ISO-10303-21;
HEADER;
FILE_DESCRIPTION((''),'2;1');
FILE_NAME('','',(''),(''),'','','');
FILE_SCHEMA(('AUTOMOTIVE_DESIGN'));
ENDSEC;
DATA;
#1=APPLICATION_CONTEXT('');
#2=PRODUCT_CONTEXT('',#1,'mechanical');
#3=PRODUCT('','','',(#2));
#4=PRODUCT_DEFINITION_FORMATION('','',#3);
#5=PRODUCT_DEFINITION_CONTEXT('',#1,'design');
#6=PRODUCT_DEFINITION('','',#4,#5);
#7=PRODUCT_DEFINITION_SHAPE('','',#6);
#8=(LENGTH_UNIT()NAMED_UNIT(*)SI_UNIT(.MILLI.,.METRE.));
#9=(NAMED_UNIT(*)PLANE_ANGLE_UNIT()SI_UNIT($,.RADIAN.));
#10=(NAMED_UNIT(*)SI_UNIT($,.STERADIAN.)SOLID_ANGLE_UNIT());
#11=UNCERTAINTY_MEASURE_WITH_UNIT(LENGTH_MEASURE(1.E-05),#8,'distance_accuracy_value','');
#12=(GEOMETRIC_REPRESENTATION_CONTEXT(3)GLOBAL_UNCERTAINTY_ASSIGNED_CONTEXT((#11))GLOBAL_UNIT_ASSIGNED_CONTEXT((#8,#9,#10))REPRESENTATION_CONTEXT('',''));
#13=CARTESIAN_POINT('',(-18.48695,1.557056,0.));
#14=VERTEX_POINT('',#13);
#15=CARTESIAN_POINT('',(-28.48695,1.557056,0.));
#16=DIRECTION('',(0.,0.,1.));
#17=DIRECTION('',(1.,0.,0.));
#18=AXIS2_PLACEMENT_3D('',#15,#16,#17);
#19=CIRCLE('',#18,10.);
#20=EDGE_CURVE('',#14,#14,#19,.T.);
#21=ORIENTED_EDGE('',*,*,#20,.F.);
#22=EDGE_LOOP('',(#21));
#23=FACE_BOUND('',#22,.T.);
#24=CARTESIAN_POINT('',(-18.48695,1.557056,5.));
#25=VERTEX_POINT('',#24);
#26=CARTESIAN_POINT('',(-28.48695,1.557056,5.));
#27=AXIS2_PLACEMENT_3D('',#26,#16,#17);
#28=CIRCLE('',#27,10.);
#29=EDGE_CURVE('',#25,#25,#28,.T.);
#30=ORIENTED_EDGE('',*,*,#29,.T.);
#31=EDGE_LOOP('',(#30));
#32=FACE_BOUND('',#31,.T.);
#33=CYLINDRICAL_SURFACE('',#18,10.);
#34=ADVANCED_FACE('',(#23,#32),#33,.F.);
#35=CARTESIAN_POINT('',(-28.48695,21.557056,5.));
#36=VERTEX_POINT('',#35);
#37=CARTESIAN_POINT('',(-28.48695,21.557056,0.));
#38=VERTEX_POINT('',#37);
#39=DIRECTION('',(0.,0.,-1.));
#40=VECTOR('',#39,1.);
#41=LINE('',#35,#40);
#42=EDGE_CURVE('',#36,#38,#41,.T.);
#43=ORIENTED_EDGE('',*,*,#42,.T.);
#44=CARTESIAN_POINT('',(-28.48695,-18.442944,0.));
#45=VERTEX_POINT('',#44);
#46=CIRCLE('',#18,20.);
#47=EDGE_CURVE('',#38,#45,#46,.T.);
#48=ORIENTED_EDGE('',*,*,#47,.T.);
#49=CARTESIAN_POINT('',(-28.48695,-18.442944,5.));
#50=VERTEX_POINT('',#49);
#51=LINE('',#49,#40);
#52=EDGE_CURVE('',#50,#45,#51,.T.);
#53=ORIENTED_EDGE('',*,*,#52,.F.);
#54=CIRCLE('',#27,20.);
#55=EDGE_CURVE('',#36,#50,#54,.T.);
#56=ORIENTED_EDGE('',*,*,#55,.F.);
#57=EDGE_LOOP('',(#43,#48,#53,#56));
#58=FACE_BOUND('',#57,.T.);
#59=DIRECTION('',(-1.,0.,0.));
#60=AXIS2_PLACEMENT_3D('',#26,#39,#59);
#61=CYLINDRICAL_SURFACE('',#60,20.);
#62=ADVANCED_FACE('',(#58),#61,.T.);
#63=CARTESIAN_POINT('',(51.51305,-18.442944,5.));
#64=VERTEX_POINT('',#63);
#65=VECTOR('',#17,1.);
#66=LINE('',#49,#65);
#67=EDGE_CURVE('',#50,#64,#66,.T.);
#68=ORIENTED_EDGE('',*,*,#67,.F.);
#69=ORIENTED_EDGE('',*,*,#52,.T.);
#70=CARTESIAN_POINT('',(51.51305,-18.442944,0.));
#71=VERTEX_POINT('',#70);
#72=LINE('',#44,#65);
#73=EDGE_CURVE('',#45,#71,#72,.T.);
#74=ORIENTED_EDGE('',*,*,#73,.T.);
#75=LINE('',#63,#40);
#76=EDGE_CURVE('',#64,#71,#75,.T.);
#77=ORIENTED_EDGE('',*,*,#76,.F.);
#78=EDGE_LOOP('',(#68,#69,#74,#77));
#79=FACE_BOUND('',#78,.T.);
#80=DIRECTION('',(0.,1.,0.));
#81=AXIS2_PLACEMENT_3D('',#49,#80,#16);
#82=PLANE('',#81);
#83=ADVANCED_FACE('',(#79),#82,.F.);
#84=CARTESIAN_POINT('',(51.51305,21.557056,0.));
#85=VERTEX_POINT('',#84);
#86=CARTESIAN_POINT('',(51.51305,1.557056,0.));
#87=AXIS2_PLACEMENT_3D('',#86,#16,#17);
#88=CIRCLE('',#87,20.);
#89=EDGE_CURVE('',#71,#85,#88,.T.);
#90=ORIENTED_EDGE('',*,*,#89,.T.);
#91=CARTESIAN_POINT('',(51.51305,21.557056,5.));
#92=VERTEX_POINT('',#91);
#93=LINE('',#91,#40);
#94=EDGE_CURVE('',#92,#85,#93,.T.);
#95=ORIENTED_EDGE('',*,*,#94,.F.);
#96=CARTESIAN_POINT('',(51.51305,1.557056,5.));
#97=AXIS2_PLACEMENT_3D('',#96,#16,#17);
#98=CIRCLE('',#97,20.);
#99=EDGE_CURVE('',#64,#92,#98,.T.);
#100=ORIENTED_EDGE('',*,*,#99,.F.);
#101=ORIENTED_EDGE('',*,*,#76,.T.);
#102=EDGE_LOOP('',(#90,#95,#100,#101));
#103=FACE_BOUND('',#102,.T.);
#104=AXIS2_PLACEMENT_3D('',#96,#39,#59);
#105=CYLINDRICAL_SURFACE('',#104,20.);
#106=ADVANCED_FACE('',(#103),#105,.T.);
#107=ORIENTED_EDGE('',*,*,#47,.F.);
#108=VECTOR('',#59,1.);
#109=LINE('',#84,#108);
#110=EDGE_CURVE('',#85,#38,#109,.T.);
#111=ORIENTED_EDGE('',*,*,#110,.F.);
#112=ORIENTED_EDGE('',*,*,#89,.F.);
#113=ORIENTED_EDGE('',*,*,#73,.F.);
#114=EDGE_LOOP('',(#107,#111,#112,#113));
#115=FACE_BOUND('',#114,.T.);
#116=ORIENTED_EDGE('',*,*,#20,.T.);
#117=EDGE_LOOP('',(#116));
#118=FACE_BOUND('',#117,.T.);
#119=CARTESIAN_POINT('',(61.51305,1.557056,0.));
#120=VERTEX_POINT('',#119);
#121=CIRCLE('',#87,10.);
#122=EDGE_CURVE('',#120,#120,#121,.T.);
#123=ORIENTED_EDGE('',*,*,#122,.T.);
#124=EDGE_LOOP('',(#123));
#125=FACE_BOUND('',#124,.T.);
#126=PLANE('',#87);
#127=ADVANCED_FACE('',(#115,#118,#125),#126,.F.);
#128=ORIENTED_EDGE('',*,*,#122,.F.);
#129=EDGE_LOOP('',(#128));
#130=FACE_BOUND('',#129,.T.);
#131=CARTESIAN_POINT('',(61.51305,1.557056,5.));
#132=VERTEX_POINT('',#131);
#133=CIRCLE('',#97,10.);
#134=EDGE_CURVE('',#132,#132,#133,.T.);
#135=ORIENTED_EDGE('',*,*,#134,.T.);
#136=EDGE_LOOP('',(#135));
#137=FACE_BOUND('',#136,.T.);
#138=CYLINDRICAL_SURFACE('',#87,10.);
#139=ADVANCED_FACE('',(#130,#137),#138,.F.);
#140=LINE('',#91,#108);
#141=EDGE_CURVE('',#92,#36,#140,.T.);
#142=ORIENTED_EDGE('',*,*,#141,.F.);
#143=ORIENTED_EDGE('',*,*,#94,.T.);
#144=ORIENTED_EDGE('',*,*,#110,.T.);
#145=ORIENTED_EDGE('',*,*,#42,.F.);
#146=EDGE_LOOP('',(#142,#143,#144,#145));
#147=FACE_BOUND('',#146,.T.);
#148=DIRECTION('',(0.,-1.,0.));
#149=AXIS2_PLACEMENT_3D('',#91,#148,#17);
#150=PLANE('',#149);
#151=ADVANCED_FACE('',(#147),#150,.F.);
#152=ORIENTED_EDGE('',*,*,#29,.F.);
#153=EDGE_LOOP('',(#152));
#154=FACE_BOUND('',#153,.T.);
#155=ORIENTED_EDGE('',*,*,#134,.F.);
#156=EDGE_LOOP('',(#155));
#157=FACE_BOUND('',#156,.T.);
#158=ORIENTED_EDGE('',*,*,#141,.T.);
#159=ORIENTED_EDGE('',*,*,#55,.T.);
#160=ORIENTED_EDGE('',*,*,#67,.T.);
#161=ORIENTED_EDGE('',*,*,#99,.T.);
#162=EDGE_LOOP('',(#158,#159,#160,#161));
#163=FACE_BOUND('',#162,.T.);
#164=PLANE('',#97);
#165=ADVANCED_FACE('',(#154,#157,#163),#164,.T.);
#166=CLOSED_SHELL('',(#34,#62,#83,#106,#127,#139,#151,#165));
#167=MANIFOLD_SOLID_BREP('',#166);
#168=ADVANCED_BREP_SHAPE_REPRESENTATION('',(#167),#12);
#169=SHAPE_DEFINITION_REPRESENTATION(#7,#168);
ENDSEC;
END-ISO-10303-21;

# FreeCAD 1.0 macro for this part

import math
import FreeCAD as App
import Part
import Sketcher

V = App.Vector
Q = App.Units.Quantity

doc = App.newDocument("Part")
params = doc.addObject("Spreadsheet::Sheet", "Params")
for row, (alias, value) in enumerate([
    ("sketch1_radius", "20 mm"),
    ("sketch1_width", "80 mm"),
    ("pad1_length", "5 mm"),
    ("sketch2_diameter", "20 mm"),
], start=1):
    params.set(f"A{row}", alias)
    params.set(f"B{row}", "=" + value)
    params.setAlias(f"B{row}", alias)

body = doc.addObject("PartDesign::Body", "Body")

sketch1 = body.newObject("Sketcher::SketchObject", "Sketch")
sketch1.AttachmentSupport = (doc.getObject("XY_Plane"), [""])
sketch1.MapMode = "FlatFace"
sketch1.addGeometry(Part.LineSegment(V(52, 22, 0), V(-28, 22, 0)), False)
sketch1.addGeometry(Part.ArcOfCircle(Part.Circle(V(-28, 2, 0), V(0, 0, 1), 20), math.radians(90), math.radians(270)), False)
sketch1.addGeometry(Part.LineSegment(V(-28, -18, 0), V(52, -18, 0)), False)
sketch1.addGeometry(Part.ArcOfCircle(Part.Circle(V(52, 2, 0), V(0, 0, 1), 20), math.radians(-90), math.radians(90)), False)
sketch1.addConstraint(Sketcher.Constraint("Tangent", 0, 2, 1, 1))
sketch1.addConstraint(Sketcher.Constraint("Tangent", 1, 2, 2, 1))
sketch1.addConstraint(Sketcher.Constraint("Tangent", 2, 2, 3, 1))
sketch1.addConstraint(Sketcher.Constraint("Tangent", 3, 2, 0, 1))
sketch1.addConstraint(Sketcher.Constraint("Horizontal", 0))
sketch1.addConstraint(Sketcher.Constraint("Horizontal", 2))
sketch1.addConstraint(Sketcher.Constraint("Radius", 1, Q("20 mm")))
sketch1.addConstraint(Sketcher.Constraint("DistanceX", 0, 2, 0, 1, Q("80 mm")))
sketch1.addConstraint(Sketcher.Constraint("DistanceX", 1, 3, -1, 1, Q("28.48695 mm")))
sketch1.addConstraint(Sketcher.Constraint("DistanceY", -1, 1, 1, 3, Q("1.557056 mm")))
sketch1.setExpression("Constraints[6]", "Params.sketch1_radius")
sketch1.setExpression("Constraints[7]", "Params.sketch1_width")
pad1 = body.newObject("PartDesign::Pad", "Pad")
pad1.Profile = sketch1
pad1.setExpression("Length", "Params.pad1_length")

sketch2 = body.newObject("Sketcher::SketchObject", "Sketch001")
sketch2.AttachmentSupport = (doc.getObject("XY_Plane"), [""])
sketch2.MapMode = "FlatFace"
sketch2.AttachmentOffset = App.Placement(V(0, 0, 5), App.Rotation())
sketch2.addGeometry(Part.Circle(V(-28, 2, 0), V(0, 0, 1), 10), False)
sketch2.addGeometry(Part.Circle(V(52, 2, 0), V(0, 0, 1), 10), False)
sketch2.addConstraint(Sketcher.Constraint("Equal", 0, 1))
sketch2.addConstraint(Sketcher.Constraint("Horizontal", 0, 3, 1, 3))
sketch2.addConstraint(Sketcher.Constraint("Diameter", 0, Q("20 mm")))
sketch2.addConstraint(Sketcher.Constraint("DistanceX", 0, 3, 1, 3, Q("80 mm")))
sketch2.addConstraint(Sketcher.Constraint("DistanceX", 0, 3, -1, 1, Q("28.48695 mm")))
sketch2.addConstraint(Sketcher.Constraint("DistanceY", -1, 1, 0, 3, Q("1.557056 mm")))
sketch2.setExpression("Constraints[2]", "Params.sketch2_diameter")
pocket1 = body.newObject("PartDesign::Pocket", "Pocket")
pocket1.Profile = sketch2
pocket1.Type = "ThroughAll"

doc.recompute()
